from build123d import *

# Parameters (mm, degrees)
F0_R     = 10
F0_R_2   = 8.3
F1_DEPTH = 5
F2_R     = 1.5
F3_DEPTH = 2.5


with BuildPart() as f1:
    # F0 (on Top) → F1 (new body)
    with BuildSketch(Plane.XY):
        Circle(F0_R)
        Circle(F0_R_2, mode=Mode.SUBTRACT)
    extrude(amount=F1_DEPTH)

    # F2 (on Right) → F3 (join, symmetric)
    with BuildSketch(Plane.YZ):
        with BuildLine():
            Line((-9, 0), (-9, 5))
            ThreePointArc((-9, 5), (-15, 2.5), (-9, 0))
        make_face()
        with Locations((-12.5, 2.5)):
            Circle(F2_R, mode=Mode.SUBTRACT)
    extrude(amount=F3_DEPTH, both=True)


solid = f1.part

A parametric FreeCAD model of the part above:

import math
import FreeCAD as App
import Part
import Sketcher

V = App.Vector

doc = App.newDocument("Part")
body = doc.addObject("PartDesign::Body", "Body")

# Sketch on XY plane
sketch1 = body.newObject("Sketcher::SketchObject", "Sketch")
sketch1.AttachmentSupport = (doc.getObject("XY_Plane"), [""])
sketch1.MapMode = "FlatFace"
sketch1.addGeometry(Part.Circle(V(0, 0, 0), V(0, 0, 1), 10), False)
sketch1.addGeometry(Part.Circle(V(0, 0, 0), V(0, 0, 1), 8.3), False)
sketch1.addConstraint(Sketcher.Constraint("Coincident", 0, 3, -1, 1))
sketch1.addConstraint(Sketcher.Constraint("Coincident", 1, 3, -1, 1))
sketch1.addConstraint(Sketcher.Constraint("Diameter", 0, 20.0))
sketch1.addConstraint(Sketcher.Constraint("Diameter", 1, 16.6))
pad1 = body.newObject("PartDesign::Pad", "Pad")
pad1.Profile = sketch1
pad1.Length = 5

# Sketch on YZ plane
sketch2 = body.newObject("Sketcher::SketchObject", "Sketch001")
sketch2.AttachmentSupport = (doc.getObject("YZ_Plane"), [""])
sketch2.MapMode = "FlatFace"
sketch2.addGeometry(Part.LineSegment(V(-9, 0, 0), V(-9, 5, 0)), False)
sketch2.addGeometry(Part.ArcOfCircle(Part.Circle(V(-11.479167, 2.5, 0), V(0, 0, 1), 3.520833), math.radians(45.23973), math.radians(314.76027)), False)
sketch2.addGeometry(Part.Circle(V(-12.5, 2.5, 0), V(0, 0, 1), 1.5), False)
sketch2.addConstraint(Sketcher.Constraint("Coincident", 0, 1, 1, 2))
sketch2.addConstraint(Sketcher.Constraint("Coincident", 1, 1, 0, 2))
sketch2.addConstraint(Sketcher.Constraint("Vertical", 0))
sketch2.addConstraint(Sketcher.Constraint("PointOnObject", 0, 1, -1))
sketch2.addConstraint(Sketcher.Constraint("Horizontal", 1, 3, 2, 3))
sketch2.addConstraint(Sketcher.Constraint("Diameter", 2, 3.0))
sketch2.addConstraint(Sketcher.Constraint("DistanceY", 0, 1, 0, 2, 5.0))
sketch2.addConstraint(Sketcher.Constraint("DistanceX", 0, 1, -1, 1, 9.0))
sketch2.addConstraint(Sketcher.Constraint("DistanceX", 2, 3, -1, 1, 12.5))
sketch2.addConstraint(Sketcher.Constraint("Radius", 1, 3.520833))
pad2 = body.newObject("PartDesign::Pad", "Pad001")
pad2.Profile = sketch2
pad2.Length = 5
pad2.Midplane = True

doc.recompute()
